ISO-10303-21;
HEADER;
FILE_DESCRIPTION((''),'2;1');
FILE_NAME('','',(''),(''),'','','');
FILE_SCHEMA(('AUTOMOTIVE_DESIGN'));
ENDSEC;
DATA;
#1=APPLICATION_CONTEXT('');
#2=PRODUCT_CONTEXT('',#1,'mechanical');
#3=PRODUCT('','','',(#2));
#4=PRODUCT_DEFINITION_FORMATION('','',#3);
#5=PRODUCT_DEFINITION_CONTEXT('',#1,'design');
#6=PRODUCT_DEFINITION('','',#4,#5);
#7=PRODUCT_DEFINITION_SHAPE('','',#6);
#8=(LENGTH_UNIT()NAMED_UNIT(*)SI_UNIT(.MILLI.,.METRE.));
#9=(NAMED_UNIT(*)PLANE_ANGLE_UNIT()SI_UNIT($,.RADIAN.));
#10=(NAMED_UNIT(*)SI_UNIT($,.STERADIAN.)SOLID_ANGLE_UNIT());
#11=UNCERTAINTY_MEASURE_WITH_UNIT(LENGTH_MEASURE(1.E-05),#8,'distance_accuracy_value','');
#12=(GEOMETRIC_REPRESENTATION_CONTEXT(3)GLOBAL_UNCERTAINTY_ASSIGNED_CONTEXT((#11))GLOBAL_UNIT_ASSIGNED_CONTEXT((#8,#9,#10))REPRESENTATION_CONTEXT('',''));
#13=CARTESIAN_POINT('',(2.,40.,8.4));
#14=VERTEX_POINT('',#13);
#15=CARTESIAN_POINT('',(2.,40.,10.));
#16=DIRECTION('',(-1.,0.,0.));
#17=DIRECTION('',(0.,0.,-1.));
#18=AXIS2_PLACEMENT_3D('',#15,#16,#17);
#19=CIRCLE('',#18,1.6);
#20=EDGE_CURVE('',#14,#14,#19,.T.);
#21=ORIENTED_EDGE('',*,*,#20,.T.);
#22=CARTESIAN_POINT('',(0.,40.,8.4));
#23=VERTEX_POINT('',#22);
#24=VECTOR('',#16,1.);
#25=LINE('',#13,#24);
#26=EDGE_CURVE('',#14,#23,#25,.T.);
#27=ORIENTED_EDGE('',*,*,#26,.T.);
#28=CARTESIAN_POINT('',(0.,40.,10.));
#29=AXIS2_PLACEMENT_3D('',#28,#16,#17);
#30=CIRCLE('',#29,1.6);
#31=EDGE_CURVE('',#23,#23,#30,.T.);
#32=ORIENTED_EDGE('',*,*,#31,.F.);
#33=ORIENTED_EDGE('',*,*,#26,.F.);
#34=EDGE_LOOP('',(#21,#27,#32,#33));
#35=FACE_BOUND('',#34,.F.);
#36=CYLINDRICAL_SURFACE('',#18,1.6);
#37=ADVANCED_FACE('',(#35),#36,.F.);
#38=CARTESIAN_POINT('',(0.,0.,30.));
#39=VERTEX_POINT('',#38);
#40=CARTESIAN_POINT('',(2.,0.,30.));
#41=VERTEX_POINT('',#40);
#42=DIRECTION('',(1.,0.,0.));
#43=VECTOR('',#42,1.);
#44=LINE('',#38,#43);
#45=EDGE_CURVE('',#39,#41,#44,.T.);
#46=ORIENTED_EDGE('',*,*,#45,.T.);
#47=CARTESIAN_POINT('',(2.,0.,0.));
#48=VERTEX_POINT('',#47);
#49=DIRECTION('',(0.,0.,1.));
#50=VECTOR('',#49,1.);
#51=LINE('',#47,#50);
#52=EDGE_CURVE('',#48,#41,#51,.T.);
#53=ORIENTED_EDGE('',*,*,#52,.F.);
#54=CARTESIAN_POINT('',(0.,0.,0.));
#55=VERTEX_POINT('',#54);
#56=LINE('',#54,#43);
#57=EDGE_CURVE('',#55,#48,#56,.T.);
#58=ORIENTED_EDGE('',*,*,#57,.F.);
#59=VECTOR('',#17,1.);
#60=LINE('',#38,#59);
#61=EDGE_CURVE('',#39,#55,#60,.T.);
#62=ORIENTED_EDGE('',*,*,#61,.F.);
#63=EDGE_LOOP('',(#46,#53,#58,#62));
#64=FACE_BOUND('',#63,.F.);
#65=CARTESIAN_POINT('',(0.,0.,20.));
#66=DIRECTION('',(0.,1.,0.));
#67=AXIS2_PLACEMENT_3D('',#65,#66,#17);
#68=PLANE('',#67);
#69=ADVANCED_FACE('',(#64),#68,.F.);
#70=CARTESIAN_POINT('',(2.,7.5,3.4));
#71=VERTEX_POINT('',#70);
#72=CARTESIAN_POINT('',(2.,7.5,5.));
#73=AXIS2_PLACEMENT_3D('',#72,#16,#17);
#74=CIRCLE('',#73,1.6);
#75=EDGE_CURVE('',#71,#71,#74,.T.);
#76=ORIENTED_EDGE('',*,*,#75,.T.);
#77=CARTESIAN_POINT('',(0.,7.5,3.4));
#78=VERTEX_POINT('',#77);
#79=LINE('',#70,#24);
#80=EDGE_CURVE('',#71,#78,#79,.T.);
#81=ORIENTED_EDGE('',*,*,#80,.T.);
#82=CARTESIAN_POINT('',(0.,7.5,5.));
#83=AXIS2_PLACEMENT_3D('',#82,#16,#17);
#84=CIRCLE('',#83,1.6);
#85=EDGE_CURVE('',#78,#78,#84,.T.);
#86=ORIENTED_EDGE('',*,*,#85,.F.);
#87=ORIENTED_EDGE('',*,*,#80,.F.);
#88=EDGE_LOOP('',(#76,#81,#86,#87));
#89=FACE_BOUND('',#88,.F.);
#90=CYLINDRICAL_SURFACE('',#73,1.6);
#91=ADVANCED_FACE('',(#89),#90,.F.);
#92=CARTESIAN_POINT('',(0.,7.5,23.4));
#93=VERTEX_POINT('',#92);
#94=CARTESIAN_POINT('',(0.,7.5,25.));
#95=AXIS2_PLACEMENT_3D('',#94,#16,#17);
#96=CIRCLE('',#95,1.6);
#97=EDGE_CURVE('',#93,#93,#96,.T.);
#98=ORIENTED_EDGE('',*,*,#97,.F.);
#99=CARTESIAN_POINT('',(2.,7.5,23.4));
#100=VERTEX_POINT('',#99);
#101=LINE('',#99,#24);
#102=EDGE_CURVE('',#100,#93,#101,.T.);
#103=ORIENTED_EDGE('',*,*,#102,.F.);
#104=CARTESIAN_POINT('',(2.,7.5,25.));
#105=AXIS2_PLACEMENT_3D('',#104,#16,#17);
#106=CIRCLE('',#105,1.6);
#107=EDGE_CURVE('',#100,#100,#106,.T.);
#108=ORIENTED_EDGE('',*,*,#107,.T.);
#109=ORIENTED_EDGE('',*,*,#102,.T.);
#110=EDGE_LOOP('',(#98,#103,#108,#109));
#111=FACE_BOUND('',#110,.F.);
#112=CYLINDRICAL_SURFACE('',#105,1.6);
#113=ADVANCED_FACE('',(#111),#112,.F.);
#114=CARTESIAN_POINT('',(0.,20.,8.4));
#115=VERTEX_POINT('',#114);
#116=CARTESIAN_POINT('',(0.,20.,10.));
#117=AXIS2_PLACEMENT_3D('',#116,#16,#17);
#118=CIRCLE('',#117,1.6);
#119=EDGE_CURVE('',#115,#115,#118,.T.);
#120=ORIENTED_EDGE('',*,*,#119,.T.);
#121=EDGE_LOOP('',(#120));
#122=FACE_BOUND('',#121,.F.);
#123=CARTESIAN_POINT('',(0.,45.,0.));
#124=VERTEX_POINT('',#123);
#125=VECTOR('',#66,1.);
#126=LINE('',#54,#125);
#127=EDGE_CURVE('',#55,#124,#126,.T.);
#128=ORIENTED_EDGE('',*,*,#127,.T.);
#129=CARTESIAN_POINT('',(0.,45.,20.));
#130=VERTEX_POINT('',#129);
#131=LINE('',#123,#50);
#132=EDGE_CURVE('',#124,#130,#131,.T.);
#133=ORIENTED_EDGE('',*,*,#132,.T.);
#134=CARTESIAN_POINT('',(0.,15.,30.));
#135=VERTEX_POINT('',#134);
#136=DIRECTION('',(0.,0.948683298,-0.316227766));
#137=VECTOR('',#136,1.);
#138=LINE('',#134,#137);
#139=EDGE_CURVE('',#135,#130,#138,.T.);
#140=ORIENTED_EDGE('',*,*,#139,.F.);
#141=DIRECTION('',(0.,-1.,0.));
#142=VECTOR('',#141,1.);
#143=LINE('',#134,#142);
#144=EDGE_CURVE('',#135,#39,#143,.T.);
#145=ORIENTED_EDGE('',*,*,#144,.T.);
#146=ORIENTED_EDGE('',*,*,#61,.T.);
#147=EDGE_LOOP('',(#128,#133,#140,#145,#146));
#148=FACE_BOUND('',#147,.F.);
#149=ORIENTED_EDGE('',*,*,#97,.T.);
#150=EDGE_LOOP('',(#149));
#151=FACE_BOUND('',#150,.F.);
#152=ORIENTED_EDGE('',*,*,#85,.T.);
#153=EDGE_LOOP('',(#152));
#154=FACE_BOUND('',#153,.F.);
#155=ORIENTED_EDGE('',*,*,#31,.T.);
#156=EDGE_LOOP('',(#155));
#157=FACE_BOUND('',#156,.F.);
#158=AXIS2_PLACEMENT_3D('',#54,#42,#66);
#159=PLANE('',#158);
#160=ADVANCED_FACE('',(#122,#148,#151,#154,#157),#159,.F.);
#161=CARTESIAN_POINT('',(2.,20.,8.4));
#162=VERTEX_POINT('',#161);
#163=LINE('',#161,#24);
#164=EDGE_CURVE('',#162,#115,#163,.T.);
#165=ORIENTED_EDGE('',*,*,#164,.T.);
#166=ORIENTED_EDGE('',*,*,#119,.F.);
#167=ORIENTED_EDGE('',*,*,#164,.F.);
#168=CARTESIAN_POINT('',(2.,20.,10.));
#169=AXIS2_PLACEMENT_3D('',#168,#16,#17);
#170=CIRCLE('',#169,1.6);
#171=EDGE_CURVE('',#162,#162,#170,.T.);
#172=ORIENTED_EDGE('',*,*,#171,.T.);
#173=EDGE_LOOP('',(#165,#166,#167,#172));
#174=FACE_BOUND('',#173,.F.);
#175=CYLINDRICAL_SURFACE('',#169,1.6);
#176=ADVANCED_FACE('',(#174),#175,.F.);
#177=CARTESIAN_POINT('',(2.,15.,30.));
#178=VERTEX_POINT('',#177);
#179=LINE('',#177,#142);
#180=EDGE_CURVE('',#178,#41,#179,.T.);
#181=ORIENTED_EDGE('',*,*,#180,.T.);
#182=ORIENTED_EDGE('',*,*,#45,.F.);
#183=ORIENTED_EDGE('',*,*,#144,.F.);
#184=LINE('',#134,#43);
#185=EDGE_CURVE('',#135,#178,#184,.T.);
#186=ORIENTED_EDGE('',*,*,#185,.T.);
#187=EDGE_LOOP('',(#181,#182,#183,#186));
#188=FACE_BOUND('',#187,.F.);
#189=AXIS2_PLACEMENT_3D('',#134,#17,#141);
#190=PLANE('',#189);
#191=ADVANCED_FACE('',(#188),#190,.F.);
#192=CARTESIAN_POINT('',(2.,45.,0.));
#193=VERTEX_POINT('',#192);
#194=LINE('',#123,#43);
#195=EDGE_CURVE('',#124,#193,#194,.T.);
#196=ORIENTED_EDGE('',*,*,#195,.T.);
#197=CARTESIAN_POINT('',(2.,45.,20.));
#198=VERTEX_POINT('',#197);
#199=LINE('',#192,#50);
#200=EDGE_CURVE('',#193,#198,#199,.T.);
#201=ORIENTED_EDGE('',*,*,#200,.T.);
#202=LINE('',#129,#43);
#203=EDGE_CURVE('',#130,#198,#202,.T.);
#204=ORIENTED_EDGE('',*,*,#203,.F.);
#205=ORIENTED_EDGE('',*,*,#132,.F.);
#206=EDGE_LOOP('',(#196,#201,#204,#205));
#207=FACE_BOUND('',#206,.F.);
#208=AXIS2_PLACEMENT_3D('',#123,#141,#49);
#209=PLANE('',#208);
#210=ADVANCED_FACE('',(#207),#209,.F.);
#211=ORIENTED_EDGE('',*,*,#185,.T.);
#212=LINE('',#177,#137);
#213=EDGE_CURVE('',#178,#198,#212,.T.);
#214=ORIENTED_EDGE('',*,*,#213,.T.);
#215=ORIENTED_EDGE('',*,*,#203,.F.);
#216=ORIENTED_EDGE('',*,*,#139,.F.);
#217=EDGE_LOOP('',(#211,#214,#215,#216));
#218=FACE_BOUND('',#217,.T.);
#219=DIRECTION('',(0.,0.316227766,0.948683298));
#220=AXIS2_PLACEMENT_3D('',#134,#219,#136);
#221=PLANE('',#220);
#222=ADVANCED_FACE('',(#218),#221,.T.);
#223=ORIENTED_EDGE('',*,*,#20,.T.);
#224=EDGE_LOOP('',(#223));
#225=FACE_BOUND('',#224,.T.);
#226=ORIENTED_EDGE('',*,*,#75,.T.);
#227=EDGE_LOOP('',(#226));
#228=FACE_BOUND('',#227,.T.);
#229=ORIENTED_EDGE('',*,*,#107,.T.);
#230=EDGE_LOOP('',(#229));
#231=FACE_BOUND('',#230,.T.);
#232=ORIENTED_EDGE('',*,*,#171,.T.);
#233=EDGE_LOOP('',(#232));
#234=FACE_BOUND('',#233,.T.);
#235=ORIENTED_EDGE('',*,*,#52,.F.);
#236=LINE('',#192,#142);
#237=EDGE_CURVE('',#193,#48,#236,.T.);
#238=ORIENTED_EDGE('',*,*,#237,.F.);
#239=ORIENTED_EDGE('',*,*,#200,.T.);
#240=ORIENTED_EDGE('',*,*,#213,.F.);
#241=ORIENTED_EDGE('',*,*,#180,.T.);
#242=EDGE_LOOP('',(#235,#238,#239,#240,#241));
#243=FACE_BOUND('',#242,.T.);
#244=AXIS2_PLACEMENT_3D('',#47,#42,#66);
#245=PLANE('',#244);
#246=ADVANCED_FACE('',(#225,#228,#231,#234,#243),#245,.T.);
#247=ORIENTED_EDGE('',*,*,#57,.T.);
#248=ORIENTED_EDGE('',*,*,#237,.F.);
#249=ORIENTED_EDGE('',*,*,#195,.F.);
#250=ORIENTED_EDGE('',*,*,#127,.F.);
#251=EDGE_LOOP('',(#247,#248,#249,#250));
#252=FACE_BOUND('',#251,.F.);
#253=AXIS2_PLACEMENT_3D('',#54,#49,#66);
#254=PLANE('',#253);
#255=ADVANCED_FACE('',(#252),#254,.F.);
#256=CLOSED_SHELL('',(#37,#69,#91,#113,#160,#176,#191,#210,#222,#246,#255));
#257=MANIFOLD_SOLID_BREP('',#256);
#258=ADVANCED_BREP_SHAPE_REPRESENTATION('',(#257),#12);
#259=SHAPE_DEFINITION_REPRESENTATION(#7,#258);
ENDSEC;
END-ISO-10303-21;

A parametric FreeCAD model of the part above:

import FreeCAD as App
import Part
import Sketcher
from FreeCAD import Vector

doc = App.newDocument("Part")
body = doc.addObject("PartDesign::Body", "Body")

# Sketch on YZ plane
sketch1 = body.newObject("Sketcher::SketchObject", "Sketch")
sketch1.AttachmentSupport = (doc.getObject("YZ_Plane"), [""])
sketch1.MapMode = "FlatFace"
sketch1.addGeometry(Part.LineSegment(Vector(0, 30, 0), Vector(0, 0, 0)), False)
sketch1.addGeometry(Part.LineSegment(Vector(0, 0, 0), Vector(45, 0, 0)), False)
sketch1.addGeometry(Part.LineSegment(Vector(45, 0, 0), Vector(45, 20, 0)), False)
sketch1.addGeometry(Part.LineSegment(Vector(45, 20, 0), Vector(15, 30, 0)), False)
sketch1.addGeometry(Part.LineSegment(Vector(15, 30, 0), Vector(0, 30, 0)), False)
sketch1.addConstraint(Sketcher.Constraint("Coincident", 0, 2, 1, 1))
sketch1.addConstraint(Sketcher.Constraint("Coincident", 1, 2, 2, 1))
sketch1.addConstraint(Sketcher.Constraint("Coincident", 2, 2, 3, 1))
sketch1.addConstraint(Sketcher.Constraint("Coincident", 3, 2, 4, 1))
sketch1.addConstraint(Sketcher.Constraint("Coincident", 4, 2, 0, 1))
sketch1.addConstraint(Sketcher.Constraint("Vertical", 0))
sketch1.addConstraint(Sketcher.Constraint("Horizontal", 1))
sketch1.addConstraint(Sketcher.Constraint("Vertical", 2))
sketch1.addConstraint(Sketcher.Constraint("Horizontal", 4))
sketch1.addConstraint(Sketcher.Constraint("Coincident", 0, 2, -1, 1))
sketch1.addConstraint(Sketcher.Constraint("DistanceX", 4, 2, 4, 1, 15.0))
sketch1.addConstraint(Sketcher.Constraint("DistanceY", 0, 2, 0, 1, 30.0))
sketch1.addConstraint(Sketcher.Constraint("DistanceY", 2, 1, 2, 2, 20.0))
sketch1.addConstraint(Sketcher.Constraint("DistanceX", 3, 2, 2, 2, 30.0))
pad1 = body.newObject("PartDesign::Pad", "Pad")
pad1.Profile = sketch1
pad1.Length = 2

# Sketch on YZ plane
sketch2 = body.newObject("Sketcher::SketchObject", "Sketch001")
sketch2.AttachmentSupport = (doc.getObject("YZ_Plane"), [""])
sketch2.MapMode = "FlatFace"
sketch2.AttachmentOffset = App.Placement(Vector(0, 0, 2), App.Rotation())
sketch2.addGeometry(Part.Circle(Vector(7.5, 25, 0), Vector(0, 0, 1), 1.6), False)
sketch2.addGeometry(Part.Circle(Vector(7.5, 5, 0), Vector(0, 0, 1), 1.6), False)
sketch2.addGeometry(Part.Circle(Vector(20, 10, 0), Vector(0, 0, 1), 1.6), False)
sketch2.addGeometry(Part.Circle(Vector(40, 10, 0), Vector(0, 0, 1), 1.6), False)
sketch2.addConstraint(Sketcher.Constraint("Equal", 0, 1))
sketch2.addConstraint(Sketcher.Constraint("Equal", 1, 2))
sketch2.addConstraint(Sketcher.Constraint("Equal", 2, 3))
sketch2.addConstraint(Sketcher.Constraint("Horizontal", 2, 3, 3, 3))
sketch2.addConstraint(Sketcher.Constraint("Vertical", 0, 3, 1, 3))
sketch2.addConstraint(Sketcher.Constraint("Diameter", 0, 3.2))
sketch2.addConstraint(Sketcher.Constraint("DistanceY", -1, 1, 0, 3, 25.0))
sketch2.addConstraint(Sketcher.Constraint("DistanceY", -1, 1, 1, 3, 5.0))
sketch2.addConstraint(Sketcher.Constraint("DistanceX", -1, 1, 2, 3, 20.0))
sketch2.addConstraint(Sketcher.Constraint("DistanceY", -1, 1, 2, 3, 10.0))
sketch2.addConstraint(Sketcher.Constraint("DistanceX", -1, 1, 3, 3, 40.0))
sketch2.addConstraint(Sketcher.Constraint("DistanceX", -1, 1, 0, 3, 7.5))
doc.recompute()
hole = body.newObject("PartDesign::Hole", "Hole")
hole.Profile = sketch2
hole.ThreadType = "None"
hole.Diameter = 3.2
hole.DepthType = "ThroughAll"

doc.recompute()
